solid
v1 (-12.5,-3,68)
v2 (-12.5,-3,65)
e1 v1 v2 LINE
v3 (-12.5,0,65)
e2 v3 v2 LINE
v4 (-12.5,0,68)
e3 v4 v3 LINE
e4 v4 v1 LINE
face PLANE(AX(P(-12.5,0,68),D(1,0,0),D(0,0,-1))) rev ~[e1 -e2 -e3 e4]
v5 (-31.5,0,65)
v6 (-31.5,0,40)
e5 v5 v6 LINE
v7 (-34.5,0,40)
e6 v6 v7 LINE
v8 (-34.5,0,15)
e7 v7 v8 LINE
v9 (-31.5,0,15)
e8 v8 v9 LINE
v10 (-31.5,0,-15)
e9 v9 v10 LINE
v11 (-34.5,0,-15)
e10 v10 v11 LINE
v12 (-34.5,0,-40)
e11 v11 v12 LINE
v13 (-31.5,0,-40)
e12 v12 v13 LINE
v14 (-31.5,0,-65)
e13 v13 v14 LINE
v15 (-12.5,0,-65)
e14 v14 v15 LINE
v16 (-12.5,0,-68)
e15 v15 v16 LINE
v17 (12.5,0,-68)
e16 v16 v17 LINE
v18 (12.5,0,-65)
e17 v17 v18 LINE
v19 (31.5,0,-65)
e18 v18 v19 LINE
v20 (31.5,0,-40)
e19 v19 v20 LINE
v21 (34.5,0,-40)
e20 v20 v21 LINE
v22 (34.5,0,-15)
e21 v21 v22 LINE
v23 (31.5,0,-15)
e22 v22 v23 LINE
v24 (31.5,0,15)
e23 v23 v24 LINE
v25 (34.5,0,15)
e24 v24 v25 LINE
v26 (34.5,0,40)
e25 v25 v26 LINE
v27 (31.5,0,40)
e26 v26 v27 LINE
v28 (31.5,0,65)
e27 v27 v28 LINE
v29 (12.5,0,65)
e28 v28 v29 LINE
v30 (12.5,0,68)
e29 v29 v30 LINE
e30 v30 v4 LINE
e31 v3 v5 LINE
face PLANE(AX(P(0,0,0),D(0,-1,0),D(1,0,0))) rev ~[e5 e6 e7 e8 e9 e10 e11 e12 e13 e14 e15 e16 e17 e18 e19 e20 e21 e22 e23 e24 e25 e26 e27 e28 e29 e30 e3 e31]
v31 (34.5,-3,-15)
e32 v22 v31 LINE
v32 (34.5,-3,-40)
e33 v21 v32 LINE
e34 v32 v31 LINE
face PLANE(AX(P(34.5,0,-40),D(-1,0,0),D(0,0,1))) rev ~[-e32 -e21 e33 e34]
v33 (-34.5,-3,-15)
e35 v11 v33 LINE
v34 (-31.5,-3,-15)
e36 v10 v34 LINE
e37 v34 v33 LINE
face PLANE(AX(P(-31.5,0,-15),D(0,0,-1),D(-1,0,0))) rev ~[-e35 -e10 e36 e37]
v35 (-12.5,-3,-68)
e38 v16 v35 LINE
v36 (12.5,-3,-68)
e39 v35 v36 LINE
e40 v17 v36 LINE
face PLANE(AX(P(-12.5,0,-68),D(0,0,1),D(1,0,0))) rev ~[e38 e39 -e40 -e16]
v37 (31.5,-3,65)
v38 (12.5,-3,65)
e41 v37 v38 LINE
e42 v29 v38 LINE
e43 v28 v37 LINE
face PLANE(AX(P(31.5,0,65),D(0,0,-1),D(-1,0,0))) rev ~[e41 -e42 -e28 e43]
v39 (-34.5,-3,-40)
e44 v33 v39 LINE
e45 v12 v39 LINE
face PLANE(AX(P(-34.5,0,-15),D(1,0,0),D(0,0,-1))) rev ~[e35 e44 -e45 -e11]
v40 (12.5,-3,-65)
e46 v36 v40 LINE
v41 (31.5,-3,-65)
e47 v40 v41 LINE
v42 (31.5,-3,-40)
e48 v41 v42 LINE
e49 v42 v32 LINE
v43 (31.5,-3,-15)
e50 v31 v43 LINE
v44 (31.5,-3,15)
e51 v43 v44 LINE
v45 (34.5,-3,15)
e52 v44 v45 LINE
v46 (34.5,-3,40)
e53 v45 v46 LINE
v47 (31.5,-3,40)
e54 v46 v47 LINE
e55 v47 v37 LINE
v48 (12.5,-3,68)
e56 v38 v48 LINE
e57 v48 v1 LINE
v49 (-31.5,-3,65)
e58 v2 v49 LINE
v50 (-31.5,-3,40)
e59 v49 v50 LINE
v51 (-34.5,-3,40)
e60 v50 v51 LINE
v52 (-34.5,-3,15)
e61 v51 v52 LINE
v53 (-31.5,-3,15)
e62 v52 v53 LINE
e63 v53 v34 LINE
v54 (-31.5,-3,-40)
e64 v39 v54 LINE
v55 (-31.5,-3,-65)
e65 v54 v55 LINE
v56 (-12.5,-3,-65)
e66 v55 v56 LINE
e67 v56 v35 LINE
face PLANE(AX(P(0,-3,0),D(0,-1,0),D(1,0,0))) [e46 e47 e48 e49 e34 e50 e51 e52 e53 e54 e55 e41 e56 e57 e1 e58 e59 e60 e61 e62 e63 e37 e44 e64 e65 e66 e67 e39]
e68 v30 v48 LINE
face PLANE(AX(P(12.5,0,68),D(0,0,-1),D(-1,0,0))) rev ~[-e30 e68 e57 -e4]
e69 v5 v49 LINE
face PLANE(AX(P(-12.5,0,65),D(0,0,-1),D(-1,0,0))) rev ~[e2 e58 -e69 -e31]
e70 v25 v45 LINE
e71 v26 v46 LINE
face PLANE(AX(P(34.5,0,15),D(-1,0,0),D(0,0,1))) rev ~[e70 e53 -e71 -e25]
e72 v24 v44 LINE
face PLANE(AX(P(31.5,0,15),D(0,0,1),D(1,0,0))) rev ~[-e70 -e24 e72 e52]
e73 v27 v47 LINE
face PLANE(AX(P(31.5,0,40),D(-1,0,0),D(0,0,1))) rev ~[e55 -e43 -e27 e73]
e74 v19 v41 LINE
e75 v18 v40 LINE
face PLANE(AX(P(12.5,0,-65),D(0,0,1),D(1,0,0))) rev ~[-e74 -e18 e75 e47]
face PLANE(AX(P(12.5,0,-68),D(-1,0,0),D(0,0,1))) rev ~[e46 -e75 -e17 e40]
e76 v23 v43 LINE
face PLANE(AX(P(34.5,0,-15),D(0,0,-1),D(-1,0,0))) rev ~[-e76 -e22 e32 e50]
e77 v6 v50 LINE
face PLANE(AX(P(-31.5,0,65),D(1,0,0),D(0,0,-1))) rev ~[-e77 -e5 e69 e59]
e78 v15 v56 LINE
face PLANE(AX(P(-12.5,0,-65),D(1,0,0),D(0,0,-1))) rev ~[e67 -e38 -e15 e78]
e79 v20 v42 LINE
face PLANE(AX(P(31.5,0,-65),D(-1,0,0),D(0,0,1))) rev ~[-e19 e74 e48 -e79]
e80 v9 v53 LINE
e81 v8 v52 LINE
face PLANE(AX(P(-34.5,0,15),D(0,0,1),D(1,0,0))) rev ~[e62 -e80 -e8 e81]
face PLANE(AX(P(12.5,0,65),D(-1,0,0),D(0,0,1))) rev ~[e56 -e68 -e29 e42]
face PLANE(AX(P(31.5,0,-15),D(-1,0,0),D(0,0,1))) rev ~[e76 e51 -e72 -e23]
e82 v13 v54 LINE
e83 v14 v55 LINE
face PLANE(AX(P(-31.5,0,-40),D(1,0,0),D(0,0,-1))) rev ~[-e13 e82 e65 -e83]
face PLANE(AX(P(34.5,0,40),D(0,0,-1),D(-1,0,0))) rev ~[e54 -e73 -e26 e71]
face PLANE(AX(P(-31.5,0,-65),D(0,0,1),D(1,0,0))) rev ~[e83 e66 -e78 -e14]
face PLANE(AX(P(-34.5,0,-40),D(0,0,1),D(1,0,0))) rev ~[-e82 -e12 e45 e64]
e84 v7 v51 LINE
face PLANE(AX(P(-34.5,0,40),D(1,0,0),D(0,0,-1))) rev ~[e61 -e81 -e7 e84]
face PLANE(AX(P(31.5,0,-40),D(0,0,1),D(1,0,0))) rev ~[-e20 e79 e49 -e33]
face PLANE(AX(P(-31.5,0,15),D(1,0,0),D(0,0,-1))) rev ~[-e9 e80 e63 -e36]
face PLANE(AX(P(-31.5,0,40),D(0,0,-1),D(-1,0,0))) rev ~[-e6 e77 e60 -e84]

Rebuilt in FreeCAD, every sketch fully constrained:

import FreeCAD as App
import Part
import Sketcher
Q = App.Units.Quantity


def add_polygon(sketch, points):
    """Adds a closed chain of lines whose ends are joined by coincident constraints."""
    first, n = sketch.GeometryCount, len(points)
    for a, b in zip(points, points[1:] + points[:1]):
        sketch.addGeometry(Part.LineSegment(App.Vector(*a, 0), App.Vector(*b, 0)), False)
    for i in range(n):
        sketch.addConstraint(Sketcher.Constraint("Coincident", first + i, 2, first + (i + 1) % n, 1))

doc = App.newDocument("Part")
body = doc.addObject("PartDesign::Body", "Body")

sketch1 = body.newObject("Sketcher::SketchObject", "Sketch")
sketch1.AttachmentSupport = (doc.getObject("XZ_Plane"), [""])
sketch1.MapMode = "FlatFace"
add_polygon(sketch1, [(-31.5, 65), (-31.5, 40), (-34.5, 40), (-34.5, 15), (-31.5, 15), (-31.5, -15), (-34.5, -15), (-34.5, -40), (-31.5, -40), (-31.5, -65), (-12.5, -65), (-12.5, -68), (12.5, -68), (12.5, -65), (31.5, -65), (31.5, -40), (34.5, -40), (34.5, -15), (31.5, -15), (31.5, 15), (34.5, 15), (34.5, 40), (31.5, 40), (31.5, 65), (12.5, 65), (12.5, 68), (-12.5, 68), (-12.5, 65)])
sketch1.addConstraint(Sketcher.Constraint("Vertical", 0))
sketch1.addConstraint(Sketcher.Constraint("Horizontal", 1))
sketch1.addConstraint(Sketcher.Constraint("Vertical", 2))
sketch1.addConstraint(Sketcher.Constraint("Horizontal", 3))
sketch1.addConstraint(Sketcher.Constraint("Vertical", 4))
sketch1.addConstraint(Sketcher.Constraint("Horizontal", 5))
sketch1.addConstraint(Sketcher.Constraint("Vertical", 6))
sketch1.addConstraint(Sketcher.Constraint("Horizontal", 7))
sketch1.addConstraint(Sketcher.Constraint("Vertical", 8))
sketch1.addConstraint(Sketcher.Constraint("Horizontal", 9))
sketch1.addConstraint(Sketcher.Constraint("Vertical", 10))
sketch1.addConstraint(Sketcher.Constraint("Horizontal", 11))
sketch1.addConstraint(Sketcher.Constraint("Vertical", 12))
sketch1.addConstraint(Sketcher.Constraint("Horizontal", 13))
sketch1.addConstraint(Sketcher.Constraint("Vertical", 14))
sketch1.addConstraint(Sketcher.Constraint("Horizontal", 15))
sketch1.addConstraint(Sketcher.Constraint("Vertical", 16))
sketch1.addConstraint(Sketcher.Constraint("Horizontal", 17))
sketch1.addConstraint(Sketcher.Constraint("Vertical", 18))
sketch1.addConstraint(Sketcher.Constraint("Horizontal", 19))
sketch1.addConstraint(Sketcher.Constraint("Vertical", 20))
sketch1.addConstraint(Sketcher.Constraint("Horizontal", 21))
sketch1.addConstraint(Sketcher.Constraint("Vertical", 22))
sketch1.addConstraint(Sketcher.Constraint("Horizontal", 23))
sketch1.addConstraint(Sketcher.Constraint("Vertical", 24))
sketch1.addConstraint(Sketcher.Constraint("Horizontal", 25))
sketch1.addConstraint(Sketcher.Constraint("Vertical", 26))
sketch1.addConstraint(Sketcher.Constraint("Horizontal", 27))
sketch1.addConstraint(Sketcher.Constraint("Symmetric", 0, 2, 14, 2, -1, 1))
sketch1.addConstraint(Sketcher.Constraint("Symmetric", 2, 2, 16, 2, -1, 1))
sketch1.addConstraint(Sketcher.Constraint("Symmetric", 4, 2, 18, 2, -1, 1))
sketch1.addConstraint(Sketcher.Constraint("Symmetric", 6, 2, 20, 2, -1, 1))
sketch1.addConstraint(Sketcher.Constraint("Symmetric", 8, 2, 22, 2, -1, 1))
sketch1.addConstraint(Sketcher.Constraint("Symmetric", 10, 2, 24, 2, -1, 1))
sketch1.addConstraint(Sketcher.Constraint("Symmetric", 12, 2, 26, 2, -1, 1))
sketch1.addConstraint(Sketcher.Constraint("Symmetric", 9, 2, 12, 2, -2))
sketch1.addConstraint(Sketcher.Constraint("Symmetric", 7, 2, 14, 2, -2))
sketch1.addConstraint(Sketcher.Constraint("Symmetric", 5, 2, 16, 2, -2))
sketch1.addConstraint(Sketcher.Constraint("Vertical", 0, 2, 3, 2))
sketch1.addConstraint(Sketcher.Constraint("Equal", 25, 0))
sketch1.addConstraint(Sketcher.Constraint("Equal", 0, 2))
sketch1.addConstraint(Sketcher.Constraint("Equal", 21, 10))
sketch1.addConstraint(Sketcher.Constraint("DistanceX", 1, 2, 1, 1, Q("3 mm")))
sketch1.addConstraint(Sketcher.Constraint("DistanceX", 9, 1, 9, 2, Q("19 mm")))
sketch1.addConstraint(Sketcher.Constraint("DistanceX", 11, 1, 11, 2, Q("25 mm")))
sketch1.addConstraint(Sketcher.Constraint("DistanceY", 4, 2, 4, 1, Q("30 mm")))
pad1 = body.newObject("PartDesign::Pad", "Pad")
pad1.Profile = sketch1
pad1.Length = 3

doc.recompute()
